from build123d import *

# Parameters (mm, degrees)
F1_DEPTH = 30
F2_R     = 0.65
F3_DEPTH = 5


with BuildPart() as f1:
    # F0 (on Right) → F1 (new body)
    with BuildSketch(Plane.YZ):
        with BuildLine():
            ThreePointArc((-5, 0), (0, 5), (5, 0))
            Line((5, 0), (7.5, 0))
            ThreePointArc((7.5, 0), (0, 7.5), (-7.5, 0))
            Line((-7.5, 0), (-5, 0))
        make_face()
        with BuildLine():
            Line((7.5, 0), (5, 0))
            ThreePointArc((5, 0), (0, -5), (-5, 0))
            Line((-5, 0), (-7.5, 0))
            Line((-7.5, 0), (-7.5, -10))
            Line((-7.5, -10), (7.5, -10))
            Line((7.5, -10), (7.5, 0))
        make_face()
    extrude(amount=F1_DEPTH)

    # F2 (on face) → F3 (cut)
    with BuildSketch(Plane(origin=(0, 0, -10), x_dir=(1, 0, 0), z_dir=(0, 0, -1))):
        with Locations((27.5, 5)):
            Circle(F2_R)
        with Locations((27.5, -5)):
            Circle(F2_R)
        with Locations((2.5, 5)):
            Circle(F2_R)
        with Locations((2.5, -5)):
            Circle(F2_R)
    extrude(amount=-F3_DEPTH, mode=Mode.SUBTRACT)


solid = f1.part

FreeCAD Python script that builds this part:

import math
import FreeCAD as App
import Part
import Sketcher

V = App.Vector

doc = App.newDocument("Part")
body = doc.addObject("PartDesign::Body", "Body")

# Sketch on YZ plane
sketch1 = body.newObject("Sketcher::SketchObject", "Sketch")
sketch1.AttachmentSupport = (doc.getObject("YZ_Plane"), [""])
sketch1.MapMode = "FlatFace"
sketch1.addGeometry(Part.ArcOfCircle(Part.Circle(V(0, 0, 0), V(0, 0, 1), 8), math.radians(0), math.radians(180)), False)
sketch1.addGeometry(Part.LineSegment(V(-8, 0, 0), V(-8, -10, 0)), False)
sketch1.addGeometry(Part.LineSegment(V(-8, -10, 0), V(8, -10, 0)), False)
sketch1.addGeometry(Part.LineSegment(V(8, -10, 0), V(8, 0, 0)), False)
sketch1.addGeometry(Part.Circle(V(0, 0, 0), V(0, 0, 1), 5), False)
sketch1.addConstraint(Sketcher.Constraint("Tangent", 0, 2, 1, 1))
sketch1.addConstraint(Sketcher.Constraint("Coincident", 1, 2, 2, 1))
sketch1.addConstraint(Sketcher.Constraint("Coincident", 2, 2, 3, 1))
sketch1.addConstraint(Sketcher.Constraint("Tangent", 3, 2, 0, 1))
sketch1.addConstraint(Sketcher.Constraint("Vertical", 1))
sketch1.addConstraint(Sketcher.Constraint("Horizontal", 2))
sketch1.addConstraint(Sketcher.Constraint("Vertical", 3))
sketch1.addConstraint(Sketcher.Constraint("Coincident", 0, 3, -1, 1))
sketch1.addConstraint(Sketcher.Constraint("Coincident", 4, 3, -1, 1))
sketch1.addConstraint(Sketcher.Constraint("Diameter", 4, 10.0))
sketch1.addConstraint(Sketcher.Constraint("Radius", 0, 7.5))
sketch1.addConstraint(Sketcher.Constraint("DistanceY", 1, 2, 1, 1, 10.0))
pad1 = body.newObject("PartDesign::Pad", "Pad")
pad1.Profile = sketch1
pad1.Length = 30

# Sketch on XY plane
sketch2 = body.newObject("Sketcher::SketchObject", "Sketch001")
sketch2.AttachmentSupport = (doc.getObject("XY_Plane"), [""])
sketch2.MapMode = "FlatFace"
sketch2.AttachmentOffset = App.Placement(V(0, 0, -10), App.Rotation())
sketch2.addGeometry(Part.Circle(V(27.5, -5, 0), V(0, 0, 1), 0.7), False)
sketch2.addGeometry(Part.Circle(V(27.5, 5, 0), V(0, 0, 1), 0.7), False)
sketch2.addGeometry(Part.Circle(V(2.5, -5, 0), V(0, 0, 1), 0.7), False)
sketch2.addGeometry(Part.Circle(V(2.5, 5, 0), V(0, 0, 1), 0.7), False)
sketch2.addConstraint(Sketcher.Constraint("Equal", 0, 1))
sketch2.addConstraint(Sketcher.Constraint("Equal", 1, 2))
sketch2.addConstraint(Sketcher.Constraint("Equal", 2, 3))
sketch2.addConstraint(Sketcher.Constraint("Symmetric", 0, 3, 1, 3, -1))
sketch2.addConstraint(Sketcher.Constraint("Symmetric", 2, 3, 3, 3, -1))
sketch2.addConstraint(Sketcher.Constraint("Horizontal", 0, 3, 2, 3))
sketch2.addConstraint(Sketcher.Constraint("Diameter", 0, 1.3))
sketch2.addConstraint(Sketcher.Constraint("DistanceY", 0, 3, -1, 1, 5.0))
sketch2.addConstraint(Sketcher.Constraint("DistanceX", 2, 3, 0, 3, 25.0))
sketch2.addConstraint(Sketcher.Constraint("DistanceX", -1, 1, 0, 3, 27.5))
pocket1 = body.newObject("PartDesign::Pocket", "Pocket")
pocket1.Profile = sketch2
pocket1.Length = 5
pocket1.Reversed = True

doc.recompute()
